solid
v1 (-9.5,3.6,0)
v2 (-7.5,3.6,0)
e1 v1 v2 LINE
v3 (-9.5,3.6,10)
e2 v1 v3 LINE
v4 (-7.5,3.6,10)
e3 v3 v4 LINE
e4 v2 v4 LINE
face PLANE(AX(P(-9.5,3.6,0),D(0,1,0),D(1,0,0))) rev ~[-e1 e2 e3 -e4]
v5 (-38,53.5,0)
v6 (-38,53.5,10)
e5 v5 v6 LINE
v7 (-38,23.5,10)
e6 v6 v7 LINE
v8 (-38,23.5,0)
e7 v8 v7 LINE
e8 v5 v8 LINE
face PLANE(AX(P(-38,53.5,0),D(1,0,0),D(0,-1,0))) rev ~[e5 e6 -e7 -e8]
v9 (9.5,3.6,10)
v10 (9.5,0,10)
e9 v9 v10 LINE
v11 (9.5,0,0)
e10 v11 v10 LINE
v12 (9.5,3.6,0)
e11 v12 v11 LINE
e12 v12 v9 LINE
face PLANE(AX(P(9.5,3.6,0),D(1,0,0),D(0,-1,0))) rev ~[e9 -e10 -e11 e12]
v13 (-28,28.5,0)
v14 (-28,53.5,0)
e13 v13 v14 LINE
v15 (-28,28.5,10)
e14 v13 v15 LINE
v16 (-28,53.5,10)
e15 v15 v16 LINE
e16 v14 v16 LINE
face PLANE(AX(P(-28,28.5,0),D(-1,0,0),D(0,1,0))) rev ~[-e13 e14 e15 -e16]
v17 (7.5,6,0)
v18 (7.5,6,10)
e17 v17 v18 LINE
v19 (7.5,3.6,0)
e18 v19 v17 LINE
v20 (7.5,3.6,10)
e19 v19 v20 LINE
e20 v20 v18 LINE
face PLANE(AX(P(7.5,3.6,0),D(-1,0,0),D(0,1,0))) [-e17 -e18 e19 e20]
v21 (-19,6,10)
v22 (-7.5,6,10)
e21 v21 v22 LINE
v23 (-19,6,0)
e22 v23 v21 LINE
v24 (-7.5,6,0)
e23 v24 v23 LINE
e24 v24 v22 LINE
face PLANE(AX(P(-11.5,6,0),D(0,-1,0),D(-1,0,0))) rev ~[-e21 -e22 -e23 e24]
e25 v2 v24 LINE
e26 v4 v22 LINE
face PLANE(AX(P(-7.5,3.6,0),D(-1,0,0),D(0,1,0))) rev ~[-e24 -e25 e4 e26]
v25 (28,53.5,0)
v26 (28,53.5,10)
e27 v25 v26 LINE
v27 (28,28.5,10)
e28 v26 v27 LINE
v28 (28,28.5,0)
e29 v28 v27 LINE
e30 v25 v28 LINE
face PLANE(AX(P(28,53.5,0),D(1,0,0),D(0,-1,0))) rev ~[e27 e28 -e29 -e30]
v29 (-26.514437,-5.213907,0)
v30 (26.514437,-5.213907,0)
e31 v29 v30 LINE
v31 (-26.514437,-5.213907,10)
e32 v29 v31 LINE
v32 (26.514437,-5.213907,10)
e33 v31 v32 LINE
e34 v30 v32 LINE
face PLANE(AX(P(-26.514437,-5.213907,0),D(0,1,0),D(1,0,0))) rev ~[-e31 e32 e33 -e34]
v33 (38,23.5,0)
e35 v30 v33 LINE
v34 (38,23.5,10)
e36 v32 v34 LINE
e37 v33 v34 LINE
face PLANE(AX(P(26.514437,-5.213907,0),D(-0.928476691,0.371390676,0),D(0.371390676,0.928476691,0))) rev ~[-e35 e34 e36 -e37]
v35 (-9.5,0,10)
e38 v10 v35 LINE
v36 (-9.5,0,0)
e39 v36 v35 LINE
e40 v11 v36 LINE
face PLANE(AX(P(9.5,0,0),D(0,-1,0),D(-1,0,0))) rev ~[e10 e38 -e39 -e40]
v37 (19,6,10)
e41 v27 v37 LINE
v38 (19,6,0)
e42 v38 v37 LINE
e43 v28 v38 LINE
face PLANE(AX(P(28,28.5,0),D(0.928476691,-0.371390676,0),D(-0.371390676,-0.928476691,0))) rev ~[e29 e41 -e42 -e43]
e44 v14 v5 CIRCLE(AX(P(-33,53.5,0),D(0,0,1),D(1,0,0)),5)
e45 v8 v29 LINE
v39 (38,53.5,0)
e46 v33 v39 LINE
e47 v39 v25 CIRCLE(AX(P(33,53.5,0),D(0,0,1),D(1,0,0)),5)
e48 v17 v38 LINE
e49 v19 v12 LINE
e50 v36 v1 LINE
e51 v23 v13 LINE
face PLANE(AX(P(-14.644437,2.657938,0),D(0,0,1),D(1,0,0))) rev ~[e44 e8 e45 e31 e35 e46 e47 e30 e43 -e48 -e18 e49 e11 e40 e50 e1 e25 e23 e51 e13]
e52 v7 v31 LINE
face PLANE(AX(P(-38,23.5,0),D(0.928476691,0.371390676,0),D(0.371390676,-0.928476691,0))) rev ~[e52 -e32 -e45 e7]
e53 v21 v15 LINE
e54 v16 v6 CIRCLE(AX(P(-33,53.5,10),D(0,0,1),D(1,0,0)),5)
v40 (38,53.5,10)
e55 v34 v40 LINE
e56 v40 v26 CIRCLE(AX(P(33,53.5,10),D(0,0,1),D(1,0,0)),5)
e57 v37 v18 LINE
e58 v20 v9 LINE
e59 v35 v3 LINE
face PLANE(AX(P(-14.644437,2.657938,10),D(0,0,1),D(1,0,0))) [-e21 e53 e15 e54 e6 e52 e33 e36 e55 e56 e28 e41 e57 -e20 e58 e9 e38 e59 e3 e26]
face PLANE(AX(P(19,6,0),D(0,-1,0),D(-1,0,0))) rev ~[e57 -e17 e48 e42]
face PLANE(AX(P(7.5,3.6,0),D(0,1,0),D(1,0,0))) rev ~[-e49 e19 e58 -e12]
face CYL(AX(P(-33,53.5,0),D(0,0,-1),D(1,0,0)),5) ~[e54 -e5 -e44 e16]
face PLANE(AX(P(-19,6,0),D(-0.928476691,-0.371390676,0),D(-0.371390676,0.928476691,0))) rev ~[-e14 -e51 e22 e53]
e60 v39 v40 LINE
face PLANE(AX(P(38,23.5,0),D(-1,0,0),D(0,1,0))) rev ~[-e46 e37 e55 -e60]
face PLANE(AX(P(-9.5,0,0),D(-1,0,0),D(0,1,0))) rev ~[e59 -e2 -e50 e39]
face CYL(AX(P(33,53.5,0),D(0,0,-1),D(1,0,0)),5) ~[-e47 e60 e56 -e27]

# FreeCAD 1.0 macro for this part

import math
import FreeCAD as App
import Part
import Sketcher

V = App.Vector


def add_polygon(sketch, points):
    """Adds a closed chain of lines whose ends are joined by coincident constraints."""
    first, n = sketch.GeometryCount, len(points)
    for a, b in zip(points, points[1:] + points[:1]):
        sketch.addGeometry(Part.LineSegment(App.Vector(*a, 0), App.Vector(*b, 0)), False)
    for i in range(n):
        sketch.addConstraint(Sketcher.Constraint("Coincident", first + i, 2, first + (i + 1) % n, 1))

doc = App.newDocument("Part")
body = doc.addObject("PartDesign::Body", "Body")

# Sketch on XY plane
sketch1 = body.newObject("Sketcher::SketchObject", "Sketch")
sketch1.AttachmentSupport = (doc.getObject("XY_Plane"), [""])
sketch1.MapMode = "FlatFace"
add_polygon(sketch1, [(-9.5, 3.6), (-7.5, 3.6), (-7.5, 6), (-11.5, 6), (-11.5, -1.5), (11.5, -1.5), (11.5, 6), (7.5, 6), (7.5, 3.6), (9.5, 3.6), (9.5, 0), (-9.5, 0)])  # lines 0-11
sketch1.addConstraint([
    Sketcher.Constraint("Horizontal", 0),
    Sketcher.Constraint("Vertical", 1),
    Sketcher.Constraint("Horizontal", 2),
    Sketcher.Constraint("Vertical", 3),
    Sketcher.Constraint("Horizontal", 4),
    Sketcher.Constraint("Vertical", 5),
    Sketcher.Constraint("Horizontal", 6),
    Sketcher.Constraint("Vertical", 7),
    Sketcher.Constraint("Horizontal", 8),
    Sketcher.Constraint("Vertical", 9),
    Sketcher.Constraint("Horizontal", 10),
    Sketcher.Constraint("Vertical", 11),
    Sketcher.Constraint("Symmetric", 9, 2, 10, 2, -1, 1),
    Sketcher.Constraint("Symmetric", 2, 2, 5, 2, -2),
    Sketcher.Constraint("Symmetric", 0, 2, 7, 2, -2),
    Sketcher.Constraint("DistanceX", 0, 1, 0, 2, 2.0),
    Sketcher.Constraint("DistanceX", 2, 2, 2, 1, 4.0),
    Sketcher.Constraint("DistanceX", 4, 1, 4, 2, 23.0),
    Sketcher.Constraint("DistanceY", 1, 1, 1, 2, 2.4),
    Sketcher.Constraint("DistanceY", 3, 2, 3, 1, 7.5),
    Sketcher.Constraint("DistanceY", 9, 2, 9, 1, 3.6),
])
pad1 = body.newObject("PartDesign::Pad", "Pad")
pad1.Profile = sketch1
pad1.Length = 10

# Sketch on XY plane
sketch2 = body.newObject("Sketcher::SketchObject", "Sketch001")
sketch2.AttachmentSupport = (doc.getObject("XY_Plane"), [""])
sketch2.MapMode = "FlatFace"
sketch2.addGeometry([
    Part.LineSegment(V(-12, -2, 0), V(-12, 6, 0)),  # 0
    Part.LineSegment(V(-12, 6, 0), V(-19, 6, 0)),  # 1
    Part.LineSegment(V(-19, 6, 0), V(-28, 28, 0)),  # 2
    Part.LineSegment(V(-28, 28, 0), V(-28, 54, 0)),  # 3
    Part.ArcOfCircle(Part.Circle(V(-33, 54, 0), V(0, 0, 1), 5), math.radians(0), math.radians(180)),  # 4
    Part.LineSegment(V(-38, 54, 0), V(-38, 24, 0)),  # 5
    Part.LineSegment(V(-38, 24, 0), V(-27, -5, 0)),  # 6
    Part.LineSegment(V(-27, -5, 0), V(27, -5, 0)),  # 7
    Part.LineSegment(V(27, -5, 0), V(38, 24, 0)),  # 8
    Part.LineSegment(V(38, 24, 0), V(38, 54, 0)),  # 9
    Part.ArcOfCircle(Part.Circle(V(33, 54, 0), V(0, 0, 1), 5), math.radians(0), math.radians(180)),  # 10
    Part.LineSegment(V(28, 54, 0), V(28, 28, 0)),  # 11
    Part.LineSegment(V(28, 28, 0), V(19, 6, 0)),  # 12
    Part.LineSegment(V(19, 6, 0), V(12, 6, 0)),  # 13
    Part.LineSegment(V(12, 6, 0), V(12, -2, 0)),  # 14
    Part.LineSegment(V(12, -2, 0), V(-12, -2, 0)),  # 15
], False)
sketch2.addConstraint([
    Sketcher.Constraint("Coincident", 0, 2, 1, 1),
    Sketcher.Constraint("Coincident", 1, 2, 2, 1),
    Sketcher.Constraint("Coincident", 2, 2, 3, 1),
    Sketcher.Constraint("Tangent", 3, 2, 4, 1),
    Sketcher.Constraint("Tangent", 4, 2, 5, 1),
    Sketcher.Constraint("Coincident", 5, 2, 6, 1),
    Sketcher.Constraint("Coincident", 6, 2, 7, 1),
    Sketcher.Constraint("Coincident", 7, 2, 8, 1),
    Sketcher.Constraint("Coincident", 8, 2, 9, 1),
    Sketcher.Constraint("Tangent", 9, 2, 10, 1),
    Sketcher.Constraint("Tangent", 10, 2, 11, 1),
    Sketcher.Constraint("Coincident", 11, 2, 12, 1),
    Sketcher.Constraint("Coincident", 12, 2, 13, 1),
    Sketcher.Constraint("Coincident", 13, 2, 14, 1),
    Sketcher.Constraint("Coincident", 14, 2, 15, 1),
    Sketcher.Constraint("Coincident", 15, 2, 0, 1),
    Sketcher.Constraint("Vertical", 0),
    Sketcher.Constraint("Horizontal", 1),
    Sketcher.Constraint("Vertical", 3),
    Sketcher.Constraint("Vertical", 5),
    Sketcher.Constraint("Horizontal", 7),
    Sketcher.Constraint("Vertical", 9),
    Sketcher.Constraint("Vertical", 11),
    Sketcher.Constraint("Horizontal", 13),
    Sketcher.Constraint("Vertical", 14),
    Sketcher.Constraint("Horizontal", 15),
    Sketcher.Constraint("Equal", 4, 10),
    Sketcher.Constraint("Symmetric", 4, 3, 10, 3, -2),
    Sketcher.Constraint("Symmetric", 1, 2, 12, 2, -2),
    Sketcher.Constraint("Parallel", 2, 6),
    Sketcher.Constraint("Parallel", 8, 12),
    Sketcher.Constraint("Horizontal", 5, 2, 8, 2),
    Sketcher.Constraint("Horizontal", 2, 2, 11, 2),
    Sketcher.Constraint("Equal", 1, 13),
    Sketcher.Constraint("Equal", 13, 0),
    Sketcher.Constraint("Radius", 4, 5.0),
    Sketcher.Constraint("DistanceX", 15, 2, 15, 1, 23.0),
    Sketcher.Constraint("DistanceY", 3, 1, 3, 2, 25.0),
    Sketcher.Constraint("DistanceY", 5, 2, 5, 1, 30.0),
    Sketcher.Constraint("DistanceX", 1, 2, 1, 1, 7.5),
    Sketcher.Constraint("DistanceX", 4, 3, -1, 1, 33.0),
    Sketcher.Constraint("DistanceY", -1, 1, 0, 2, 6.0),
    Sketcher.Constraint("DistanceY", -1, 1, 4, 3, 53.5),
    Sketcher.Constraint("DistanceX", 7, 1, 7, 2, 53.028875),
])
pad2 = body.newObject("PartDesign::Pad", "Pad001")
pad2.Profile = sketch2
pad2.Length = 10

doc.recompute()
